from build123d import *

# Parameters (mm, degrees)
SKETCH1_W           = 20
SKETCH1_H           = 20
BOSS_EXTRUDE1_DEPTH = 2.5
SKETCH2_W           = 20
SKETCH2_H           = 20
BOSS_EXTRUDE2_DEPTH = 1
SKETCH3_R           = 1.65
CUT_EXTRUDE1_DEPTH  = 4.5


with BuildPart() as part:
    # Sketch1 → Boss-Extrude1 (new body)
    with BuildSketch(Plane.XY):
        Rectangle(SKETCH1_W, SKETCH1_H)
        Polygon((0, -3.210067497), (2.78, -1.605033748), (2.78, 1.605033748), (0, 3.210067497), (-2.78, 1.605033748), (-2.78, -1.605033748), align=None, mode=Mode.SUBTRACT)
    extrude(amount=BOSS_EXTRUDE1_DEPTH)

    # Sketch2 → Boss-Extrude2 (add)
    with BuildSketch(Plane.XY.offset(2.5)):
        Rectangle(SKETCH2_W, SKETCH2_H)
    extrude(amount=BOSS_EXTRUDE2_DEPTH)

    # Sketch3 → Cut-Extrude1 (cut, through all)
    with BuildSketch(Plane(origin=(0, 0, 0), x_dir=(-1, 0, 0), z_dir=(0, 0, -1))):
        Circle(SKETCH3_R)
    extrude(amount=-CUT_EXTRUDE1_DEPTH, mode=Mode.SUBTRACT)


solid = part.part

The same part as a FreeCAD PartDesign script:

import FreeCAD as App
import Part
import Sketcher
from FreeCAD import Vector
Q = App.Units.Quantity


def add_polygon(sketch, points):
    """Adds a closed chain of lines whose ends are joined by coincident constraints."""
    first, n = sketch.GeometryCount, len(points)
    for a, b in zip(points, points[1:] + points[:1]):
        sketch.addGeometry(Part.LineSegment(App.Vector(*a, 0), App.Vector(*b, 0)), False)
    for i in range(n):
        sketch.addConstraint(Sketcher.Constraint("Coincident", first + i, 2, first + (i + 1) % n, 1))

doc = App.newDocument("Part")
body = doc.addObject("PartDesign::Body", "Body")

sketch1 = body.newObject("Sketcher::SketchObject", "Sketch")
sketch1.AttachmentSupport = (doc.getObject("XY_Plane"), [""])
sketch1.MapMode = "FlatFace"
add_polygon(sketch1, [(-10, 10), (-10, -10), (10, -10), (10, 10)])
add_polygon(sketch1, [(2.78, -1.605034), (0, -3.210067), (-2.78, -1.605034), (-2.78, 1.605034), (0, 3.210067), (2.78, 1.605034)])
sketch1.addConstraint(Sketcher.Constraint("Vertical", 0))
sketch1.addConstraint(Sketcher.Constraint("Horizontal", 1))
sketch1.addConstraint(Sketcher.Constraint("Vertical", 2))
sketch1.addConstraint(Sketcher.Constraint("Horizontal", 3))
sketch1.addConstraint(Sketcher.Constraint("Vertical", 6))
sketch1.addConstraint(Sketcher.Constraint("Vertical", 9))
sketch1.addConstraint(Sketcher.Constraint("Symmetric", 0, 2, 2, 2, -1, 1))
sketch1.addConstraint(Sketcher.Constraint("Symmetric", 4, 2, 7, 2, -1, 1))
sketch1.addConstraint(Sketcher.Constraint("Symmetric", 5, 2, 8, 2, -1, 1))
sketch1.addConstraint(Sketcher.Constraint("PointOnObject", 4, 2, -2))
sketch1.addConstraint(Sketcher.Constraint("Parallel", 4, 7))
sketch1.addConstraint(Sketcher.Constraint("Horizontal", 6, 2, 8, 2))
sketch1.addConstraint(Sketcher.Constraint("Equal", 3, 0))
sketch1.addConstraint(Sketcher.Constraint("DistanceX", 1, 1, 1, 2, Q("20 mm")))
sketch1.addConstraint(Sketcher.Constraint("Angle", 4, Q("-150 deg")))
sketch1.addConstraint(Sketcher.Constraint("DistanceX", 5, 2, -1, 1, Q("2.78 mm")))
sketch1.addConstraint(Sketcher.Constraint("DistanceY", 4, 2, 6, 2, Q("4.815101 mm")))
pad1 = body.newObject("PartDesign::Pad", "Pad")
pad1.Profile = sketch1
pad1.Length = 2.5

sketch2 = body.newObject("Sketcher::SketchObject", "Sketch001")
sketch2.AttachmentSupport = (doc.getObject("XY_Plane"), [""])
sketch2.MapMode = "FlatFace"
sketch2.AttachmentOffset = App.Placement(Vector(0, 0, 2.5), App.Rotation())
add_polygon(sketch2, [(-10, 10), (-10, -10), (10, -10), (10, 10)])
sketch2.addConstraint(Sketcher.Constraint("Vertical", 0))
sketch2.addConstraint(Sketcher.Constraint("Horizontal", 1))
sketch2.addConstraint(Sketcher.Constraint("Vertical", 2))
sketch2.addConstraint(Sketcher.Constraint("Horizontal", 3))
sketch2.addConstraint(Sketcher.Constraint("Symmetric", 0, 2, 2, 2, -1, 1))
sketch2.addConstraint(Sketcher.Constraint("Equal", 3, 0))
sketch2.addConstraint(Sketcher.Constraint("DistanceX", 1, 1, 1, 2, Q("20 mm")))
pad2 = body.newObject("PartDesign::Pad", "Pad001")
pad2.Profile = sketch2
pad2.Length = 1

sketch3 = body.newObject("Sketcher::SketchObject", "Sketch002")
sketch3.AttachmentSupport = (doc.getObject("XY_Plane"), [""])
sketch3.MapMode = "FlatFace"
sketch3.addGeometry(Part.Circle(Vector(0, 0, 0), Vector(0, 0, 1), 1.65), False)
sketch3.addConstraint(Sketcher.Constraint("Coincident", 0, 3, -1, 1))
sketch3.addConstraint(Sketcher.Constraint("Diameter", 0, Q("3.3 mm")))
pocket1 = body.newObject("PartDesign::Pocket", "Pocket")
pocket1.Profile = sketch3
pocket1.Type = "ThroughAll"
pocket1.Reversed = True

doc.recompute()
